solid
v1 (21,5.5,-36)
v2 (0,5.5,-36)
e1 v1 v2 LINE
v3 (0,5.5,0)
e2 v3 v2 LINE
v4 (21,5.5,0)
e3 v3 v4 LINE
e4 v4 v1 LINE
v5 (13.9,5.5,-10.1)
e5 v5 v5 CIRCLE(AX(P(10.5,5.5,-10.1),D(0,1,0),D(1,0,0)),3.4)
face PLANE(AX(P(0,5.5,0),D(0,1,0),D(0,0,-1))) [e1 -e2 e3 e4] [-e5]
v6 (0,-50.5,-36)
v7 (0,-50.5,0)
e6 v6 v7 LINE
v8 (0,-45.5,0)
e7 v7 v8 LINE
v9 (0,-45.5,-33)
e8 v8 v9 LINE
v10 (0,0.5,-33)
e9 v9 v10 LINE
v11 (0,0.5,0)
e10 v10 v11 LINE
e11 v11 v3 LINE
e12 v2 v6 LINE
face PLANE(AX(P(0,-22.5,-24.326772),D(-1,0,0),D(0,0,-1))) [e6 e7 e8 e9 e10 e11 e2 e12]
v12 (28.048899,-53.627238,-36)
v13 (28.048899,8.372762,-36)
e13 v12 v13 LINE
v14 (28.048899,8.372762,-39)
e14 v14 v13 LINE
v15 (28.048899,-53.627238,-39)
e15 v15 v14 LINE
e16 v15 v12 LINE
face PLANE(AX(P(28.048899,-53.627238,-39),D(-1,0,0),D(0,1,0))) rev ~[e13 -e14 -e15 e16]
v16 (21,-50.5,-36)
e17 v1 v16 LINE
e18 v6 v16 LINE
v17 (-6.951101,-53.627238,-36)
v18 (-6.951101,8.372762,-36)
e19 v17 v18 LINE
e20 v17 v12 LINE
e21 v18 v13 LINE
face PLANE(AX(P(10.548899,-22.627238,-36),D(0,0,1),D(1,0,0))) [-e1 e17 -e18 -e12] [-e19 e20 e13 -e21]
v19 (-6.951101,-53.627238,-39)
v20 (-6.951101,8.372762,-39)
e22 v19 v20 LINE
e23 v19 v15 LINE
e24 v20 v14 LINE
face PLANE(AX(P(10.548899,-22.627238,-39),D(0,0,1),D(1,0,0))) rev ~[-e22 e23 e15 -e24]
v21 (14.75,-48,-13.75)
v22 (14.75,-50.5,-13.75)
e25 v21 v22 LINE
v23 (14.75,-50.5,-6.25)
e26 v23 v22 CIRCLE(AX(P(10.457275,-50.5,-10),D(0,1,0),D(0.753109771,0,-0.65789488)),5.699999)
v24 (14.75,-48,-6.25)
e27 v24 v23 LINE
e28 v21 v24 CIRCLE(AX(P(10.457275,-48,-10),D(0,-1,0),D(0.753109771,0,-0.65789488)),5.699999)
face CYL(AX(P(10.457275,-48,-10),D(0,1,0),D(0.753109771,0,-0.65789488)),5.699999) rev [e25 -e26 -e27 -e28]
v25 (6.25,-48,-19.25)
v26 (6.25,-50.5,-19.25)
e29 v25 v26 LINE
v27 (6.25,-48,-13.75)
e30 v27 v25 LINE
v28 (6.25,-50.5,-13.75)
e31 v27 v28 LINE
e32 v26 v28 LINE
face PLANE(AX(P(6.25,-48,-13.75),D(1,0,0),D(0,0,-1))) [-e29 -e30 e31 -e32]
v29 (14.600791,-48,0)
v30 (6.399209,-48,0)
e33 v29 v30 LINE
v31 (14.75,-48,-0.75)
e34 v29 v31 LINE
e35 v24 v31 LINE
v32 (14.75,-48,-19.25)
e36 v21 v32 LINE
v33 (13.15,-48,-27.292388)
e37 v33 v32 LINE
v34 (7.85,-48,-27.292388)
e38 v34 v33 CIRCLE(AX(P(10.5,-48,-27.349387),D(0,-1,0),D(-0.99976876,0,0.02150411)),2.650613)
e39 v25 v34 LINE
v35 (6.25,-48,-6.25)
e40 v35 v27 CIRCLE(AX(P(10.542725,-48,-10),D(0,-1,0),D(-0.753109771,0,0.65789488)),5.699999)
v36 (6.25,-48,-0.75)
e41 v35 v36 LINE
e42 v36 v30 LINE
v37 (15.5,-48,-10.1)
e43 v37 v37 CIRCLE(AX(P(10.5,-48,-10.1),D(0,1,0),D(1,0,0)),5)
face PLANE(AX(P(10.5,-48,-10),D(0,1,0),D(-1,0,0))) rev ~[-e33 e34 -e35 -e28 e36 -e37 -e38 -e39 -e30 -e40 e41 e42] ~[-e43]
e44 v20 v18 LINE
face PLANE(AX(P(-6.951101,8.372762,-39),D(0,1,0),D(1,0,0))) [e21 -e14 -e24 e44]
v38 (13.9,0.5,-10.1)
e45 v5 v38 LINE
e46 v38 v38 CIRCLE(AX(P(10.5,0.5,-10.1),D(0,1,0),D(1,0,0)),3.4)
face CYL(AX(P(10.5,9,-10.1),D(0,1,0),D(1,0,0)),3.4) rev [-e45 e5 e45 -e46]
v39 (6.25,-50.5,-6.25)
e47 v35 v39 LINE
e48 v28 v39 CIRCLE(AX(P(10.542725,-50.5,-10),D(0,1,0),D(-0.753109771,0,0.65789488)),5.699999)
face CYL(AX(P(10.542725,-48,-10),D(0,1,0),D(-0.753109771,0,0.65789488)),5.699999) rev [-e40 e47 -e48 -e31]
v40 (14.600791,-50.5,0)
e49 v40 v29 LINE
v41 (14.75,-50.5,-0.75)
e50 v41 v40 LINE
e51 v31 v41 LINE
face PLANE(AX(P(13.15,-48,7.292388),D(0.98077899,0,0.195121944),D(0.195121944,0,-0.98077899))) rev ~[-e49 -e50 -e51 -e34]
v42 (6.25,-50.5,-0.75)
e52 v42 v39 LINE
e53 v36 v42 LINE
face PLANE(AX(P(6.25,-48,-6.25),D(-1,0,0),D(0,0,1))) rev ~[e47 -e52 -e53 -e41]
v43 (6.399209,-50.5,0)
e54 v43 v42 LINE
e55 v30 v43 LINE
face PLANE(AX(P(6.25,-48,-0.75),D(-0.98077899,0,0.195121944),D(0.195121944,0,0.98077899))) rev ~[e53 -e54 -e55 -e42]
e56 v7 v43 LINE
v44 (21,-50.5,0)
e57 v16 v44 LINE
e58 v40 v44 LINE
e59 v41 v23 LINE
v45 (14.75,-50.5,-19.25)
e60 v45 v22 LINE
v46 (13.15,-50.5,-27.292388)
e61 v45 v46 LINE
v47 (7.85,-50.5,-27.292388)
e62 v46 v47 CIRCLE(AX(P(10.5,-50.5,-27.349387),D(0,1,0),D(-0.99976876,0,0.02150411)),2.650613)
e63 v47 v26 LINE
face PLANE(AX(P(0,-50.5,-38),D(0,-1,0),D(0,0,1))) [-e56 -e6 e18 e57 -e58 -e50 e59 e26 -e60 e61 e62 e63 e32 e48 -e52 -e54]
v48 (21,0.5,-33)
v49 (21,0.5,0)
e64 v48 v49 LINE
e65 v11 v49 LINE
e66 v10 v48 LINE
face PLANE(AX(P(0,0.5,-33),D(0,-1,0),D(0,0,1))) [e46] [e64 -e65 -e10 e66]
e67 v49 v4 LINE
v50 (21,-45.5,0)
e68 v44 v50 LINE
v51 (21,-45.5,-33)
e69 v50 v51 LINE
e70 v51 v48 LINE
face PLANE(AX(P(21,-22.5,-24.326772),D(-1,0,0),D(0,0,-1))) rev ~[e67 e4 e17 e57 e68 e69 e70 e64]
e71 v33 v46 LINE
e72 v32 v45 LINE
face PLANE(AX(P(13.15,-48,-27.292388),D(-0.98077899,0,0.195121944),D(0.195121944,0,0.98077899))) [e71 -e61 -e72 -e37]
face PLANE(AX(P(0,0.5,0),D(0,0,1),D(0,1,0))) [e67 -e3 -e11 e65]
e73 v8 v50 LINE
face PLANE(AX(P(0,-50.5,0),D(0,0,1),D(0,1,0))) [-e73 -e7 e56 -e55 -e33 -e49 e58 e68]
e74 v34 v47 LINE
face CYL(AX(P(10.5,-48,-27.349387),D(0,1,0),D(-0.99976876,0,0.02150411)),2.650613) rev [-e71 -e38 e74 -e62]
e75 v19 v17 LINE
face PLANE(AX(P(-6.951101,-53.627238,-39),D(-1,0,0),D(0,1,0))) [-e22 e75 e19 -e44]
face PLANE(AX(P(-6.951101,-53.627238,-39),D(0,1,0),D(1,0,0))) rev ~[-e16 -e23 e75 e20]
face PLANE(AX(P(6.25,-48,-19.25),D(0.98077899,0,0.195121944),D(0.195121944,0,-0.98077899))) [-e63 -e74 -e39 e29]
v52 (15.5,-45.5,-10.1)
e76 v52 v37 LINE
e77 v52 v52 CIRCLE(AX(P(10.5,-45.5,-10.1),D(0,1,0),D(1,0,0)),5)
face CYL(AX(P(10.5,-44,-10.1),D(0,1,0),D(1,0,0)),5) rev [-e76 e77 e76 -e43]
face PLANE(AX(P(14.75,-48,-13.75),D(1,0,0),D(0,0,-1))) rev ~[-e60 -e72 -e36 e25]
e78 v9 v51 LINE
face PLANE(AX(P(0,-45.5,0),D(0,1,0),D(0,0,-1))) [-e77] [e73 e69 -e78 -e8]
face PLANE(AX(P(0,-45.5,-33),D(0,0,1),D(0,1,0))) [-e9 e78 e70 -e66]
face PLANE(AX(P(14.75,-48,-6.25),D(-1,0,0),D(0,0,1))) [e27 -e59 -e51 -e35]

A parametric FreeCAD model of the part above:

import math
import FreeCAD as App
import Part
import Sketcher
from FreeCAD import Vector

doc = App.newDocument("Part")
body = doc.addObject("PartDesign::Body", "Body")

# Sketch on XY plane
sketch1 = body.newObject("Sketcher::SketchObject", "Sketch")
sketch1.AttachmentSupport = (doc.getObject("XY_Plane"), [""])
sketch1.MapMode = "FlatFace"
sketch1.AttachmentOffset = App.Placement(Vector(0, 0, -9), App.Rotation())
sketch1.addGeometry(Part.Circle(Vector(10.5, -10.1, 0), Vector(0, 0, 1), 3.4), False)
sketch1.addConstraint([
    Sketcher.Constraint("Diameter", 0, 6.8),
    Sketcher.Constraint("DistanceX", -1, 1, 0, 3, 10.5),
    Sketcher.Constraint("DistanceY", 0, 3, -1, 1, 10.1),
])
pad1 = body.newObject("PartDesign::Pad", "Pad")
pad1.Profile = sketch1
pad1.Length = 44
body2 = doc.addObject("PartDesign::Body", "Body001")

# Sketch on XY plane
sketch2 = body2.newObject("Sketcher::SketchObject", "Sketch001")
sketch2.AttachmentSupport = (doc.getObject("XY_Plane001"), [""])
sketch2.MapMode = "FlatFace"
sketch2.AttachmentOffset = App.Placement(Vector(0, 0, 44), App.Rotation())
sketch2.addGeometry(Part.Circle(Vector(10.5, -10.1, 0), Vector(0, 0, 1), 5), False)
sketch2.addConstraint([
    Sketcher.Constraint("Diameter", 0, 10.0),
    Sketcher.Constraint("DistanceX", -1, 1, 0, 3, 10.5),
    Sketcher.Constraint("DistanceY", 0, 3, -1, 1, 10.1),
])
pad2 = body2.newObject("PartDesign::Pad", "Pad001")
pad2.Profile = sketch2
pad2.Length = 9
body3 = doc.addObject("PartDesign::Body", "Body002")

# Sketch on XY plane
sketch3 = body3.newObject("Sketcher::SketchObject", "Sketch002")
sketch3.AttachmentSupport = (doc.getObject("XY_Plane002"), [""])
sketch3.MapMode = "FlatFace"
sketch3.addGeometry([
    Part.LineSegment(Vector(-4.25, 9.25, 0), Vector(-4.25, 3.75, 0)),  # 0
    Part.ArcOfCircle(Part.Circle(Vector(0.042725, 0, 0), Vector(0, 0, 1), 5.699999), math.radians(138.860479), math.radians(221.139521)),  # 1
    Part.LineSegment(Vector(-4.25, -3.75, 0), Vector(-4.25, -9.25, 0)),  # 2
    Part.LineSegment(Vector(-4.25, -9.25, 0), Vector(-2.65, -17.292388, 0)),  # 3
    Part.ArcOfCircle(Part.Circle(Vector(0, -17.349387, 0), Vector(0, 0, 1), 2.650613), math.radians(178.76781), math.radians(361.23219)),  # 4
    Part.LineSegment(Vector(2.65, -17.292388, 0), Vector(4.25, -9.25, 0)),  # 5
    Part.LineSegment(Vector(4.25, -9.25, 0), Vector(4.25, -3.75, 0)),  # 6
    Part.ArcOfCircle(Part.Circle(Vector(-0.042725, 0, 0), Vector(0, 0, 1), 5.699999), math.radians(-41.139521), math.radians(41.139521)),  # 7
    Part.LineSegment(Vector(4.25, 3.75, 0), Vector(4.25, 9.25, 0)),  # 8
    Part.LineSegment(Vector(4.25, 9.25, 0), Vector(2.65, 17.292388, 0)),  # 9
    Part.ArcOfCircle(Part.Circle(Vector(0, 17.349387, 0), Vector(0, 0, 1), 2.650613), math.radians(-1.23219), math.radians(181.23219)),  # 10
    Part.LineSegment(Vector(-2.65, 17.292388, 0), Vector(-4.25, 9.25, 0)),  # 11
], False)
sketch3.addConstraint([
    Sketcher.Constraint("Coincident", 0, 2, 1, 1),
    Sketcher.Constraint("Coincident", 1, 2, 2, 1),
    Sketcher.Constraint("Coincident", 2, 2, 3, 1),
    Sketcher.Constraint("Coincident", 3, 2, 4, 1),
    Sketcher.Constraint("Coincident", 4, 2, 5, 1),
    Sketcher.Constraint("Coincident", 5, 2, 6, 1),
    Sketcher.Constraint("Coincident", 6, 2, 7, 1),
    Sketcher.Constraint("Coincident", 7, 2, 8, 1),
    Sketcher.Constraint("Coincident", 8, 2, 9, 1),
    Sketcher.Constraint("Coincident", 9, 2, 10, 1),
    Sketcher.Constraint("Coincident", 10, 2, 11, 1),
    Sketcher.Constraint("Coincident", 11, 2, 0, 1),
    Sketcher.Constraint("Vertical", 0),
    Sketcher.Constraint("Vertical", 2),
    Sketcher.Constraint("Vertical", 6),
    Sketcher.Constraint("Vertical", 8),
    Sketcher.Constraint("Equal", 1, 7),
    Sketcher.Constraint("Equal", 4, 10),
    Sketcher.Constraint("Symmetric", 1, 3, 7, 3, -1, 1),
    Sketcher.Constraint("Symmetric", 4, 3, 10, 3, -1, 1),
    Sketcher.Constraint("Symmetric", 2, 2, 8, 2, -1, 1),
    Sketcher.Constraint("Symmetric", 5, 2, 11, 2, -1, 1),
    Sketcher.Constraint("Symmetric", 3, 2, 4, 2, -2),
    Sketcher.Constraint("Symmetric", 2, 2, 5, 2, -2),
    Sketcher.Constraint("PointOnObject", 1, 3, -1),
    Sketcher.Constraint("Parallel", 3, 9),
    Sketcher.Constraint("Parallel", 5, 11),
    Sketcher.Constraint("Radius", 1, 5.699999),
    Sketcher.Constraint("DistanceY", 0, 2, 0, 1, 5.5),
    Sketcher.Constraint("DistanceY", 2, 2, 0, 2, 13.0),
    Sketcher.Constraint("Distance", 3, 8.2),
    Sketcher.Constraint("DistanceX", 2, 2, 3, 2, 1.6),
    Sketcher.Constraint("DistanceX", 3, 2, 4, 2, 5.3),
    Sketcher.Constraint("Radius", 4, 2.650613),
])
pad3 = body3.newObject("PartDesign::Pad", "Pad002")
pad3.Profile = sketch3
pad3.Length = 5
body4 = doc.addObject("PartDesign::Body", "Body003")
doc.recompute()

body3.Placement = App.Placement(Vector(10.5, -10, 48), App.Rotation(Vector(0, 0, 1), 0))
boolean = body4.newObject("PartDesign::Boolean", "Boolean")
boolean.Type = "Fuse"
boolean.addObjects([body3])
doc.recompute()

boolean2 = body4.newObject("PartDesign::Boolean", "Boolean001")
boolean2.Type = "Fuse"
boolean2.addObjects([body2])
body5 = doc.addObject("PartDesign::Body", "Body004")

# Sketch on YZ plane
sketch4 = body5.newObject("Sketcher::SketchObject", "Sketch003")
sketch4.AttachmentSupport = (doc.getObject("YZ_Plane004"), [""])
sketch4.MapMode = "FlatFace"
sketch4.addGeometry([
    Part.LineSegment(Vector(0, -0.5, 0), Vector(-33, -0.5, 0)),  # 0
    Part.LineSegment(Vector(-33, -0.5, 0), Vector(-33, 45.5, 0)),  # 1
    Part.LineSegment(Vector(-33, 45.5, 0), Vector(0, 45.5, 0)),  # 2
    Part.LineSegment(Vector(0, 45.5, 0), Vector(0, 50.5, 0)),  # 3
    Part.LineSegment(Vector(0, 50.5, 0), Vector(-38, 50.5, 0)),  # 4
    Part.LineSegment(Vector(-38, 50.5, 0), Vector(-38, -5.5, 0)),  # 5
    Part.LineSegment(Vector(-38, -5.5, 0), Vector(0, -5.5, 0)),  # 6
    Part.LineSegment(Vector(0, -5.5, 0), Vector(0, -0.5, 0)),  # 7
], False)
sketch4.addConstraint([
    Sketcher.Constraint("Coincident", 0, 2, 1, 1),
    Sketcher.Constraint("Coincident", 1, 2, 2, 1),
    Sketcher.Constraint("Coincident", 2, 2, 3, 1),
    Sketcher.Constraint("Coincident", 3, 2, 4, 1),
    Sketcher.Constraint("Coincident", 4, 2, 5, 1),
    Sketcher.Constraint("Coincident", 5, 2, 6, 1),
    Sketcher.Constraint("Coincident", 6, 2, 7, 1),
    Sketcher.Constraint("Coincident", 7, 2, 0, 1),
    Sketcher.Constraint("Horizontal", 0),
    Sketcher.Constraint("Vertical", 1),
    Sketcher.Constraint("Horizontal", 2),
    Sketcher.Constraint("Vertical", 3),
    Sketcher.Constraint("Horizontal", 4),
    Sketcher.Constraint("Vertical", 5),
    Sketcher.Constraint("Horizontal", 6),
    Sketcher.Constraint("Vertical", 7),
    Sketcher.Constraint("PointOnObject", 2, 2, -2),
    Sketcher.Constraint("PointOnObject", 6, 2, -2),
    Sketcher.Constraint("Equal", 3, 7),
    Sketcher.Constraint("DistanceX", 0, 2, 0, 1, 33.0),
    Sketcher.Constraint("DistanceX", 4, 2, 4, 1, 38.0),
    Sketcher.Constraint("DistanceY", 1, 1, 1, 2, 46.0),
    Sketcher.Constraint("DistanceY", 3, 1, 3, 2, 5.0),
    Sketcher.Constraint("DistanceY", 0, 2, -1, 1, 0.5),
])
pad4 = body5.newObject("PartDesign::Pad", "Pad003")
pad4.Profile = sketch4
pad4.Length = 21
doc.recompute()

boolean3 = body5.newObject("PartDesign::Boolean", "Boolean002")
boolean3.Type = "Cut"
boolean3.addObjects([body4])
doc.recompute()

boolean4 = body5.newObject("PartDesign::Boolean", "Boolean003")
boolean4.Type = "Cut"
boolean4.addObjects([body])
body6 = doc.addObject("PartDesign::Body", "Body005")
doc.recompute()

body5.Placement = App.Placement(Vector(0, 0, 0), App.Rotation(Vector(1, 0, 0), 90))
boolean5 = body6.newObject("PartDesign::Boolean", "Boolean004")
boolean5.Type = "Fuse"
boolean5.addObjects([body5])
body7 = doc.addObject("PartDesign::Body", "Body006")

# Sketch on XY plane
sketch5 = body7.newObject("Sketcher::SketchObject", "Sketch004")
sketch5.AttachmentSupport = (doc.getObject("XY_Plane006"), [""])
sketch5.MapMode = "FlatFace"
sketch5.addGeometry([
    Part.LineSegment(Vector(-6.951101, 8.372762, 0), Vector(-6.951101, -53.627238, 0)),
    Part.LineSegment(Vector(-6.951101, -53.627238, 0), Vector(28.048899, -53.627238, 0)),
    Part.LineSegment(Vector(28.048899, -53.627238, 0), Vector(28.048899, 8.372762, 0)),
    Part.LineSegment(Vector(28.048899, 8.372762, 0), Vector(-6.951101, 8.372762, 0)),
], False)
sketch5.addConstraint([
    Sketcher.Constraint("Coincident", 0, 2, 1, 1),
    Sketcher.Constraint("Coincident", 1, 2, 2, 1),
    Sketcher.Constraint("Coincident", 2, 2, 3, 1),
    Sketcher.Constraint("Coincident", 3, 2, 0, 1),
    Sketcher.Constraint("Vertical", 0),
    Sketcher.Constraint("Horizontal", 1),
    Sketcher.Constraint("Vertical", 2),
    Sketcher.Constraint("Horizontal", 3),
    Sketcher.Constraint("DistanceX", 1, 1, 1, 2, 35.0),
    Sketcher.Constraint("DistanceY", 0, 2, 0, 1, 62.0),
    Sketcher.Constraint("DistanceX", 0, 2, -1, 1, 6.951101),
    Sketcher.Constraint("DistanceY", 0, 2, -1, 1, 53.627238),
])
pad5 = body7.newObject("PartDesign::Pad", "Pad004")
pad5.Profile = sketch5
pad5.Length = 3
body8 = doc.addObject("PartDesign::Body", "Body007")
doc.recompute()

body7.Placement = App.Placement(Vector(0, 0, -39), App.Rotation(Vector(0, 0, 1), 0))
boolean6 = body8.newObject("PartDesign::Boolean", "Boolean005")
boolean6.Type = "Fuse"
boolean6.addObjects([body7])
doc.recompute()

boolean7 = body8.newObject("PartDesign::Boolean", "Boolean006")
boolean7.Type = "Fuse"
boolean7.addObjects([body6])

doc.recompute()
